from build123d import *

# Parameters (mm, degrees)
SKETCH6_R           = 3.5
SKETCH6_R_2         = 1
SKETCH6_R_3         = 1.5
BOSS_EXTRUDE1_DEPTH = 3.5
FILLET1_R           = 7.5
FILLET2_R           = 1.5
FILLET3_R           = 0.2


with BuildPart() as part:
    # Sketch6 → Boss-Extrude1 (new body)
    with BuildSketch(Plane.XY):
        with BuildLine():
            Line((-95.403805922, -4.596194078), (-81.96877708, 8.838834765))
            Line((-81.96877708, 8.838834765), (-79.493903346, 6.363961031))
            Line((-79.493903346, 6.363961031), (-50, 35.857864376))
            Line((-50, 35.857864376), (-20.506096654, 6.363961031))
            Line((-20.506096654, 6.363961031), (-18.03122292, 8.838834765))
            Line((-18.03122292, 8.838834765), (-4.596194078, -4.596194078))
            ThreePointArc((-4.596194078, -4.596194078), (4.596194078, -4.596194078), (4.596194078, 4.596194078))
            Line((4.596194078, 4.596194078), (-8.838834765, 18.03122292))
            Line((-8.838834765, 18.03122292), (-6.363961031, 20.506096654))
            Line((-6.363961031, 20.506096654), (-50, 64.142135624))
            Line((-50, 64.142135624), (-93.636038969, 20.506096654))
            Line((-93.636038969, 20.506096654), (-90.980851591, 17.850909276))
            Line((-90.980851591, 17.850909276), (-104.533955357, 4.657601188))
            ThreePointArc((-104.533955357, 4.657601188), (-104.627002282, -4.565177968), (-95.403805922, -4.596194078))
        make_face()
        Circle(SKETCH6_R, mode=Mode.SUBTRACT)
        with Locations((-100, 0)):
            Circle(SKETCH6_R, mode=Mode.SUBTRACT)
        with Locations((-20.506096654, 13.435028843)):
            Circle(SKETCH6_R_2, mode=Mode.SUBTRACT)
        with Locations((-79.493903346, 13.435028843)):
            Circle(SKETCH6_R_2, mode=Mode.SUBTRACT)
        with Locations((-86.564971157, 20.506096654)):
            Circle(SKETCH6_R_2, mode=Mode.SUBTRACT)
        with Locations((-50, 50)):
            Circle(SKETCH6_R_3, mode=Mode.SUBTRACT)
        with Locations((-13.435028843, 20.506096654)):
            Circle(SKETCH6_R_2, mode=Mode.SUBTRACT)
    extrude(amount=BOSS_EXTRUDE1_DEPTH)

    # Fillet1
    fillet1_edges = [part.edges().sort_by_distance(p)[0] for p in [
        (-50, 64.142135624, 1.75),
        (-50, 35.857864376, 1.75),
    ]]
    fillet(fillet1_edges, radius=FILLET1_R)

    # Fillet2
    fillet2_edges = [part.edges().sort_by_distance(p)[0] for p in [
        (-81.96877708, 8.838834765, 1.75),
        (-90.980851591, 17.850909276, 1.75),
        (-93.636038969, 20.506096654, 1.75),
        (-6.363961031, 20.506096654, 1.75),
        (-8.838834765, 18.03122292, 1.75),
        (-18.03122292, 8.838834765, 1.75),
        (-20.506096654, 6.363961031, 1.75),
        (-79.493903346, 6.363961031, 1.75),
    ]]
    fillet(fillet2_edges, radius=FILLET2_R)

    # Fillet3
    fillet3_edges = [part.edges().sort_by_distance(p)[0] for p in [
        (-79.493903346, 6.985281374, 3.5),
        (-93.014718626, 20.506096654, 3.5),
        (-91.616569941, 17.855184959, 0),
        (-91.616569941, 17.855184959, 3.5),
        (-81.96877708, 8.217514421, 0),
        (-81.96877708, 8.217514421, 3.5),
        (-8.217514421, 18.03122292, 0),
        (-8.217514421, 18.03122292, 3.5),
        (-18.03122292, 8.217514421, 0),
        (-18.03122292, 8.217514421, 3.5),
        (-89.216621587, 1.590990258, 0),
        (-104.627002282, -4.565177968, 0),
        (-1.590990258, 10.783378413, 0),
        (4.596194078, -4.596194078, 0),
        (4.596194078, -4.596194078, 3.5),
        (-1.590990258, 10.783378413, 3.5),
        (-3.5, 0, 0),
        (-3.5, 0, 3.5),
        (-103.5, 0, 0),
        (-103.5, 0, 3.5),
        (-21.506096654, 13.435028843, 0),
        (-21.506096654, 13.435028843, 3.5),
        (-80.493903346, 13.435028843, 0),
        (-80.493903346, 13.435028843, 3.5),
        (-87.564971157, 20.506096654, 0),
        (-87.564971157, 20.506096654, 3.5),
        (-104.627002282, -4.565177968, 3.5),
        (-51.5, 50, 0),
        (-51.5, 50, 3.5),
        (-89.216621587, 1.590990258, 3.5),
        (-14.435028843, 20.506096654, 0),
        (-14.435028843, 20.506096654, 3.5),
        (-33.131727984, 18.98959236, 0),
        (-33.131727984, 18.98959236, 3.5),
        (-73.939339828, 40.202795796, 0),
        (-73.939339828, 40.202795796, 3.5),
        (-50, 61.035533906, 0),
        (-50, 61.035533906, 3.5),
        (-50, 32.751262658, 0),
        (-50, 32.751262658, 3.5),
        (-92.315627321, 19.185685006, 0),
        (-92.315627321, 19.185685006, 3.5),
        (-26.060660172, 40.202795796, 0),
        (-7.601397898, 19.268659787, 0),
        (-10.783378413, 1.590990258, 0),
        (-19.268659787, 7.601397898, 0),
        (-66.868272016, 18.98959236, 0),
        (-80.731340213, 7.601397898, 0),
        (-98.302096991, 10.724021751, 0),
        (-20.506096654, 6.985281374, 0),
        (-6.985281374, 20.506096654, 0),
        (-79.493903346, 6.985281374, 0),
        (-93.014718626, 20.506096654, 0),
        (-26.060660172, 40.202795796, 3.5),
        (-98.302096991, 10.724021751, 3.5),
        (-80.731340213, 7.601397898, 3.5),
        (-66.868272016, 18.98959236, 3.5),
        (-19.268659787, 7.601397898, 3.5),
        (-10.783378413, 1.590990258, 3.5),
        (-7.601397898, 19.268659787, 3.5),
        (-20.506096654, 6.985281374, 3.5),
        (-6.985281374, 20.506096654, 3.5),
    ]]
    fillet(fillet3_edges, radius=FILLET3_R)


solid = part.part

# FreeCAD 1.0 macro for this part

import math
import FreeCAD as App
import Part
import Sketcher
from FreeCAD import Vector


def edges_at(feature, points):
    """Names of the edges that pass closest to the given points."""
    edges = feature.Shape.Edges
    near = lambda p: min(range(len(edges)), key=lambda i: edges[i].distToShape(Part.Vertex(*p))[0])
    return sorted({f"Edge{near(p) + 1}" for p in points})

doc = App.newDocument("Part")
body = doc.addObject("PartDesign::Body", "Body")

# Sketch on XY plane
sketch1 = doc.addObject("Sketcher::SketchObject", "Sketch")
body.addObject(sketch1)
sketch1.AttachmentSupport = (doc.XY_Plane, [""])
sketch1.MapMode = "FlatFace"
sketch1.addGeometry([
    Part.LineSegment(Vector(-95.4, -4.6, 0), Vector(-82, 8.8, 0)),  # 0
    Part.LineSegment(Vector(-82, 8.8, 0), Vector(-79.5, 6.4, 0)),  # 1
    Part.LineSegment(Vector(-79.5, 6.4, 0), Vector(-50, 35.9, 0)),  # 2
    Part.LineSegment(Vector(-50, 35.9, 0), Vector(-20.5, 6.4, 0)),  # 3
    Part.LineSegment(Vector(-20.5, 6.4, 0), Vector(-18, 8.8, 0)),  # 4
    Part.LineSegment(Vector(-18, 8.8, 0), Vector(-4.6, -4.6, 0)),  # 5
    Part.ArcOfCircle(Part.Circle(Vector(0, 0, 0), Vector(0, 0, 1), 6.5), math.radians(-135), math.radians(45)),  # 6
    Part.LineSegment(Vector(4.6, 4.6, 0), Vector(-8.8, 18, 0)),  # 7
    Part.LineSegment(Vector(-8.8, 18, 0), Vector(-6.4, 20.5, 0)),  # 8
    Part.LineSegment(Vector(-6.4, 20.5, 0), Vector(-50, 64.1, 0)),  # 9
    Part.LineSegment(Vector(-50, 64.1, 0), Vector(-93.6, 20.5, 0)),  # 10
    Part.LineSegment(Vector(-93.6, 20.5, 0), Vector(-91, 17.9, 0)),  # 11
    Part.LineSegment(Vector(-91, 17.9, 0), Vector(-104.5, 4.7, 0)),  # 12
    Part.ArcOfCircle(Part.Circle(Vector(-100, 0, 0), Vector(0, 0, 1), 6.5), math.radians(134), math.radians(315)),  # 13
    Part.Circle(Vector(-100, 0, 0), Vector(0, 0, 1), 3.5),  # 14
    Part.Circle(Vector(-79.5, 13.4, 0), Vector(0, 0, 1), 1),  # 15
    Part.Circle(Vector(-86.6, 20.5, 0), Vector(0, 0, 1), 1),  # 16
    Part.Circle(Vector(0, 0, 0), Vector(0, 0, 1), 3.5),  # 17
    Part.Circle(Vector(-20.5, 13.4, 0), Vector(0, 0, 1), 1),  # 18
    Part.Circle(Vector(-13.4, 20.5, 0), Vector(0, 0, 1), 1),  # 19
    Part.Circle(Vector(-50, 50, 0), Vector(0, 0, 1), 1.5),  # 20
], False)
sketch1.addConstraint([
    Sketcher.Constraint("Coincident", 0, 2, 1, 1),
    Sketcher.Constraint("Coincident", 1, 2, 2, 1),
    Sketcher.Constraint("Coincident", 2, 2, 3, 1),
    Sketcher.Constraint("Coincident", 3, 2, 4, 1),
    Sketcher.Constraint("Coincident", 4, 2, 5, 1),
    Sketcher.Constraint("Tangent", 5, 2, 6, 1),
    Sketcher.Constraint("Tangent", 6, 2, 7, 1),
    Sketcher.Constraint("Coincident", 7, 2, 8, 1),
    Sketcher.Constraint("Coincident", 8, 2, 9, 1),
    Sketcher.Constraint("Coincident", 9, 2, 10, 1),
    Sketcher.Constraint("Coincident", 10, 2, 11, 1),
    Sketcher.Constraint("Coincident", 11, 2, 12, 1),
    Sketcher.Constraint("Tangent", 12, 2, 13, 1),
    Sketcher.Constraint("Tangent", 13, 2, 0, 1),
    Sketcher.Constraint("Coincident", 6, 3, -1, 1),
    Sketcher.Constraint("Coincident", 17, 3, -1, 1),
    Sketcher.Constraint("Coincident", 14, 3, 13, 3),
    Sketcher.Constraint("Equal", 6, 13),
    Sketcher.Constraint("Equal", 15, 16),
    Sketcher.Constraint("Equal", 14, 17),
    Sketcher.Constraint("Equal", 16, 18),
    Sketcher.Constraint("Equal", 18, 19),
    Sketcher.Constraint("PointOnObject", 13, 3, -1),
    Sketcher.Constraint("Perpendicular", 0, 1),
    Sketcher.Constraint("Perpendicular", 1, 2),
    Sketcher.Constraint("Perpendicular", 2, 3),
    Sketcher.Constraint("Perpendicular", 3, 4),
    Sketcher.Constraint("Perpendicular", 4, 5),
    Sketcher.Constraint("Parallel", 5, 7),
    Sketcher.Constraint("Perpendicular", 7, 8),
    Sketcher.Constraint("Perpendicular", 8, 9),
    Sketcher.Constraint("Perpendicular", 9, 10),
    Sketcher.Constraint("Perpendicular", 10, 11),
    Sketcher.Constraint("Horizontal", 15, 3, 18, 3),
    Sketcher.Constraint("Horizontal", 16, 3, 19, 3),
    Sketcher.Constraint("Horizontal", 1, 2, 3, 2),
    Sketcher.Constraint("Horizontal", 0, 2, 4, 2),
    Sketcher.Constraint("Horizontal", 19, 3, 8, 2),
    Sketcher.Constraint("Horizontal", 8, 2, 10, 2),
    Sketcher.Constraint("Horizontal", 5, 2, 13, 2),
    Sketcher.Constraint("Vertical", 15, 3, 1, 2),
    Sketcher.Constraint("Vertical", 20, 3, 2, 2),
    Sketcher.Constraint("Vertical", 18, 3, 3, 2),
    Sketcher.Constraint("Vertical", 2, 2, 9, 2),
    Sketcher.Constraint("Equal", 5, 7),
    Sketcher.Constraint("Equal", 4, 8),
    Sketcher.Constraint("Diameter", 14, 7.0),
    Sketcher.Constraint("Diameter", 15, 2.0),
    Sketcher.Constraint("Diameter", 20, 3.0),
    Sketcher.Constraint("Radius", 6, 6.5),
    Sketcher.Constraint("Distance", 0, 19.0),
    Sketcher.Constraint("DistanceX", 13, 3, -1, 1, 100.0),
    Sketcher.Constraint("DistanceY", -1, 1, 20, 3, 50.0),
    Sketcher.Constraint("Distance", 1, 3.5),
    Sketcher.Constraint("DistanceY", -1, 1, 12, 2, 4.657601),
    Sketcher.Constraint("DistanceY", -1, 1, 15, 3, 13.435029),
    Sketcher.Constraint("DistanceX", 16, 3, -1, 1, 86.564971),
    Sketcher.Constraint("DistanceX", 19, 3, -1, 1, 13.435029),
])
pad1 = doc.addObject("PartDesign::Pad", "Pad")
body.addObject(pad1)
pad1.Profile = sketch1
pad1.Length = 3.5
doc.recompute()

fillet = doc.addObject("PartDesign::Fillet", "Fillet")
body.addObject(fillet)
fillet.Base = (pad1, edges_at(pad1, [(-50, 64.142, 1.75), (-50, 35.858, 1.75)]))
fillet.Radius = 7.5
doc.recompute()

fillet2 = doc.addObject("PartDesign::Fillet", "Fillet001")
body.addObject(fillet2)
fillet2.Base = (fillet, edges_at(fillet, [
    (-81.969, 8.839, 1.75),
    (-90.981, 17.851, 1.75),
    (-93.636, 20.506, 1.75),
    (-6.364, 20.506, 1.75),
    (-8.839, 18.031, 1.75),
    (-18.031, 8.839, 1.75),
    (-20.506, 6.364, 1.75),
    (-79.494, 6.364, 1.75),
]))
fillet2.Radius = 1.5
doc.recompute()

fillet3 = doc.addObject("PartDesign::Fillet", "Fillet002")
body.addObject(fillet3)
fillet3.Base = (fillet2, edges_at(fillet2, [
    (-79.494, 6.985, 3.5),
    (-93.015, 20.506, 3.5),
    (-91.617, 17.855, 0),
    (-91.617, 17.855, 3.5),
    (-81.969, 8.218, 0),
    (-81.969, 8.218, 3.5),
    (-8.218, 18.031, 0),
    (-8.218, 18.031, 3.5),
    (-18.031, 8.218, 0),
    (-18.031, 8.218, 3.5),
    (-89.217, 1.591, 0),
    (-104.627, -4.565, 0),
    (-1.591, 10.783, 0),
    (4.596, -4.596, 0),
    (4.596, -4.596, 3.5),
    (-1.591, 10.783, 3.5),
    (-3.5, 0, 0),
    (-3.5, 0, 3.5),
    (-103.5, 0, 0),
    (-103.5, 0, 3.5),
    (-21.506, 13.435, 0),
    (-21.506, 13.435, 3.5),
    (-80.494, 13.435, 0),
    (-80.494, 13.435, 3.5),
    (-87.565, 20.506, 0),
    (-87.565, 20.506, 3.5),
    (-104.627, -4.565, 3.5),
    (-51.5, 50, 0),
    (-51.5, 50, 3.5),
    (-89.217, 1.591, 3.5),
    (-14.435, 20.506, 0),
    (-14.435, 20.506, 3.5),
    (-33.132, 18.99, 0),
    (-33.132, 18.99, 3.5),
    (-73.939, 40.203, 0),
    (-73.939, 40.203, 3.5),
    (-50, 61.036, 0),
    (-50, 61.036, 3.5),
    (-50, 32.751, 0),
    (-50, 32.751, 3.5),
    (-92.316, 19.186, 0),
    (-92.316, 19.186, 3.5),
    (-26.061, 40.203, 0),
    (-7.601, 19.269, 0),
    (-10.783, 1.591, 0),
    (-19.269, 7.601, 0),
    (-66.868, 18.99, 0),
    (-80.731, 7.601, 0),
    (-98.302, 10.724, 0),
    (-20.506, 6.985, 0),
    (-6.985, 20.506, 0),
    (-79.494, 6.985, 0),
    (-93.015, 20.506, 0),
    (-26.061, 40.203, 3.5),
    (-98.302, 10.724, 3.5),
    (-80.731, 7.601, 3.5),
    (-66.868, 18.99, 3.5),
    (-19.269, 7.601, 3.5),
    (-10.783, 1.591, 3.5),
    (-7.601, 19.269, 3.5),
    (-20.506, 6.985, 3.5),
    (-6.985, 20.506, 3.5),
]))
fillet3.Radius = 0.2

doc.recompute()
